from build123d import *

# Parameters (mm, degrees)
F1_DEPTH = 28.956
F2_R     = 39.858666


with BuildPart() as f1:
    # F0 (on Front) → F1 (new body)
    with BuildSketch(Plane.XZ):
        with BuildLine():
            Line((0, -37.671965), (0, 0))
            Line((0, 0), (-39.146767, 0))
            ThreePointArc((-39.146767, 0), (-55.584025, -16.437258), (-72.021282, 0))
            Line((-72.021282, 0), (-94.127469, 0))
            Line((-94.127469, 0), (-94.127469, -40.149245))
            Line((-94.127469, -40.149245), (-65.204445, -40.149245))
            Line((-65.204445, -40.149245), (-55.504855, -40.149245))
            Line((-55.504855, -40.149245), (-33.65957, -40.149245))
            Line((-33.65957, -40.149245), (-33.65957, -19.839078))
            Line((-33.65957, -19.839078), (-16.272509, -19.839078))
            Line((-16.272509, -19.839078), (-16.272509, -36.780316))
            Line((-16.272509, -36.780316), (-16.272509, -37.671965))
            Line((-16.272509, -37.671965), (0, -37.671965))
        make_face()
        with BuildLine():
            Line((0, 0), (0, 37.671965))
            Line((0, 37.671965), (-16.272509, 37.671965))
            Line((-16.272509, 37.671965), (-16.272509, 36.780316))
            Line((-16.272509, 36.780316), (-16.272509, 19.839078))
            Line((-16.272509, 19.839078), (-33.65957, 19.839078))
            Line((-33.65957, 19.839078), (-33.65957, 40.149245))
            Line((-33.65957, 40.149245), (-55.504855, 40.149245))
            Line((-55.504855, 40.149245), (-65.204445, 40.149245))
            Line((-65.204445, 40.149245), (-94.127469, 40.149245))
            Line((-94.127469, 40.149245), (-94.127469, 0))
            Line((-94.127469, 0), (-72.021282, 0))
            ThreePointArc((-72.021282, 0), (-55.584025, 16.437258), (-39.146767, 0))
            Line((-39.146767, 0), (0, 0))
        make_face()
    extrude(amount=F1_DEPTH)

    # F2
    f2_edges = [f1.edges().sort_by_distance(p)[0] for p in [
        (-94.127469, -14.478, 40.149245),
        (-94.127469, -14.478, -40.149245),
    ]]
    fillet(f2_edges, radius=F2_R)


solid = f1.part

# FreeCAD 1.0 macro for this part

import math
import FreeCAD as App
import Part
import Sketcher
from FreeCAD import Vector
Q = App.Units.Quantity


def edges_at(feature, points):
    """Names of the edges that pass closest to the given points."""
    edges = feature.Shape.Edges
    near = lambda p: min(range(len(edges)), key=lambda i: edges[i].distToShape(Part.Vertex(*p))[0])
    return sorted({f"Edge{near(p) + 1}" for p in points})

doc = App.newDocument("Part")
body = doc.addObject("PartDesign::Body", "Body")

# Sketch on XZ plane
sketch1 = body.newObject("Sketcher::SketchObject", "Sketch")
sketch1.AttachmentSupport = (doc.getObject("XZ_Plane"), [""])
sketch1.MapMode = "FlatFace"
sketch1.addGeometry([
    Part.LineSegment(Vector(0, -38, 0), Vector(0, 38, 0)),  # 0
    Part.LineSegment(Vector(0, 38, 0), Vector(-16, 38, 0)),  # 1
    Part.LineSegment(Vector(-16, 38, 0), Vector(-16, 20, 0)),  # 2
    Part.LineSegment(Vector(-16, 20, 0), Vector(-34, 20, 0)),  # 3
    Part.LineSegment(Vector(-34, 20, 0), Vector(-34, 40, 0)),  # 4
    Part.LineSegment(Vector(-34, 40, 0), Vector(-94, 40, 0)),  # 5
    Part.LineSegment(Vector(-94, 40, 0), Vector(-94, -40, 0)),  # 6
    Part.LineSegment(Vector(-94, -40, 0), Vector(-34, -40, 0)),  # 7
    Part.LineSegment(Vector(-34, -40, 0), Vector(-34, -20, 0)),  # 8
    Part.LineSegment(Vector(-34, -20, 0), Vector(-16, -20, 0)),  # 9
    Part.LineSegment(Vector(-16, -20, 0), Vector(-16, -38, 0)),  # 10
    Part.LineSegment(Vector(-16, -38, 0), Vector(0, -38, 0)),  # 11
    Part.ArcOfCircle(Part.Circle(Vector(-56, 0, 0), Vector(0, 0, 1), 16), math.radians(180), math.radians(360)),  # 12
    Part.ArcOfCircle(Part.Circle(Vector(-56, 0, 0), Vector(0, 0, 1), 16), math.radians(0), math.radians(180)),  # 13
], False)
sketch1.addConstraint([
    Sketcher.Constraint("Coincident", 0, 2, 1, 1),
    Sketcher.Constraint("Coincident", 1, 2, 2, 1),
    Sketcher.Constraint("Coincident", 2, 2, 3, 1),
    Sketcher.Constraint("Coincident", 3, 2, 4, 1),
    Sketcher.Constraint("Coincident", 4, 2, 5, 1),
    Sketcher.Constraint("Coincident", 5, 2, 6, 1),
    Sketcher.Constraint("Coincident", 6, 2, 7, 1),
    Sketcher.Constraint("Coincident", 7, 2, 8, 1),
    Sketcher.Constraint("Coincident", 8, 2, 9, 1),
    Sketcher.Constraint("Coincident", 9, 2, 10, 1),
    Sketcher.Constraint("Coincident", 10, 2, 11, 1),
    Sketcher.Constraint("Coincident", 11, 2, 0, 1),
    Sketcher.Constraint("Tangent", 12, 1, 13, 2),
    Sketcher.Constraint("Coincident", 13, 1, 12, 2),
    Sketcher.Constraint("Vertical", 0),
    Sketcher.Constraint("Horizontal", 1),
    Sketcher.Constraint("Vertical", 2),
    Sketcher.Constraint("Horizontal", 3),
    Sketcher.Constraint("Vertical", 4),
    Sketcher.Constraint("Horizontal", 5),
    Sketcher.Constraint("Vertical", 6),
    Sketcher.Constraint("Horizontal", 7),
    Sketcher.Constraint("Vertical", 8),
    Sketcher.Constraint("Horizontal", 9),
    Sketcher.Constraint("Vertical", 10),
    Sketcher.Constraint("Horizontal", 11),
    Sketcher.Constraint("Symmetric", 0, 2, 11, 2, -1, 1),
    Sketcher.Constraint("Symmetric", 4, 2, 7, 2, -1),
    Sketcher.Constraint("Symmetric", 2, 2, 9, 2, -1),
    Sketcher.Constraint("PointOnObject", 12, 3, -1),
    Sketcher.Constraint("PointOnObject", 12, 1, -1),
    Sketcher.Constraint("PointOnObject", 13, 1, -1),
    Sketcher.Constraint("DistanceX", 5, 2, 5, 1, 60.467899),
    Sketcher.Constraint("Radius", 12, 16.437258),
    Sketcher.Constraint("DistanceX", 1, 2, 1, 1, 16.272509),
    Sketcher.Constraint("DistanceX", 3, 2, 3, 1, 17.387061),
    Sketcher.Constraint("DistanceY", 0, 1, 0, 2, 75.34393),
    Sketcher.Constraint("DistanceY", 6, 2, 6, 1, 80.29849),
    Sketcher.Constraint("DistanceY", 2, 2, 2, 1, 17.832887),
    Sketcher.Constraint("DistanceX", 12, 1, -1, 1, 72.021282),
])
pad1 = body.newObject("PartDesign::Pad", "Pad")
pad1.Profile = sketch1
pad1.Length = Q("1.14 in")
doc.recompute()

fillet = body.newObject("PartDesign::Fillet", "Fillet")
fillet.Base = (pad1, edges_at(pad1, [(-94.127, -14.478, 40.149), (-94.127, -14.478, -40.149)]))
fillet.Radius = 39.858666

doc.recompute()
